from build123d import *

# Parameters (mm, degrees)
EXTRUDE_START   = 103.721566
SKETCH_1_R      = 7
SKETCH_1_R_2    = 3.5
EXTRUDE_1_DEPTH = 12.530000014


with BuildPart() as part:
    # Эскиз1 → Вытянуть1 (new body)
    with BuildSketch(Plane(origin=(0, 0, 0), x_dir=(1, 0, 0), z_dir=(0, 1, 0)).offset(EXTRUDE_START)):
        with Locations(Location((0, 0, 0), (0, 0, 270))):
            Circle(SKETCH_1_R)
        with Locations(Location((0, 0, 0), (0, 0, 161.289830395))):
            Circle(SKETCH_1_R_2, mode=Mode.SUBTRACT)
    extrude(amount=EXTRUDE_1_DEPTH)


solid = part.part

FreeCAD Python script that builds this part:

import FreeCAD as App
import Part
import Sketcher
Q = App.Units.Quantity

doc = App.newDocument("Part")
params = doc.addObject("Spreadsheet::Sheet", "Params")
for row, (alias, value) in enumerate([
    ("sketch1_diameter", "14 mm"),
    ("sketch1_diameter2", "7 mm"),
    ("pad1_length", "12.53 mm"),
], start=1):
    params.set(f"A{row}", alias)
    params.set(f"B{row}", "=" + value)
    params.setAlias(f"B{row}", alias)

body = doc.addObject("PartDesign::Body", "Body")

sketch1 = body.newObject("Sketcher::SketchObject", "Sketch")
sketch1.AttachmentSupport = (doc.getObject("XZ_Plane"), [""])
sketch1.MapMode = "FlatFace"
sketch1.AttachmentOffset = App.Placement(App.Vector(0, 0, -103.721566), App.Rotation())
sketch1.addGeometry(Part.Circle(App.Vector(0, 0, 0), App.Vector(0, 0, 1), 7), False)
sketch1.addGeometry(Part.Circle(App.Vector(0, 0, 0), App.Vector(0, 0, 1), 3.5), False)
sketch1.addConstraint(Sketcher.Constraint("Coincident", 0, 3, -1, 1))
sketch1.addConstraint(Sketcher.Constraint("Coincident", 1, 3, -1, 1))
sketch1.addConstraint(Sketcher.Constraint("Diameter", 0, Q("14 mm")))
sketch1.addConstraint(Sketcher.Constraint("Diameter", 1, Q("7 mm")))
sketch1.setExpression("Constraints[2]", "Params.sketch1_diameter")
sketch1.setExpression("Constraints[3]", "Params.sketch1_diameter2")
pad1 = body.newObject("PartDesign::Pad", "Pad")
pad1.Profile = sketch1
pad1.setExpression("Length", "Params.pad1_length")
pad1.Reversed = True

doc.recompute()
